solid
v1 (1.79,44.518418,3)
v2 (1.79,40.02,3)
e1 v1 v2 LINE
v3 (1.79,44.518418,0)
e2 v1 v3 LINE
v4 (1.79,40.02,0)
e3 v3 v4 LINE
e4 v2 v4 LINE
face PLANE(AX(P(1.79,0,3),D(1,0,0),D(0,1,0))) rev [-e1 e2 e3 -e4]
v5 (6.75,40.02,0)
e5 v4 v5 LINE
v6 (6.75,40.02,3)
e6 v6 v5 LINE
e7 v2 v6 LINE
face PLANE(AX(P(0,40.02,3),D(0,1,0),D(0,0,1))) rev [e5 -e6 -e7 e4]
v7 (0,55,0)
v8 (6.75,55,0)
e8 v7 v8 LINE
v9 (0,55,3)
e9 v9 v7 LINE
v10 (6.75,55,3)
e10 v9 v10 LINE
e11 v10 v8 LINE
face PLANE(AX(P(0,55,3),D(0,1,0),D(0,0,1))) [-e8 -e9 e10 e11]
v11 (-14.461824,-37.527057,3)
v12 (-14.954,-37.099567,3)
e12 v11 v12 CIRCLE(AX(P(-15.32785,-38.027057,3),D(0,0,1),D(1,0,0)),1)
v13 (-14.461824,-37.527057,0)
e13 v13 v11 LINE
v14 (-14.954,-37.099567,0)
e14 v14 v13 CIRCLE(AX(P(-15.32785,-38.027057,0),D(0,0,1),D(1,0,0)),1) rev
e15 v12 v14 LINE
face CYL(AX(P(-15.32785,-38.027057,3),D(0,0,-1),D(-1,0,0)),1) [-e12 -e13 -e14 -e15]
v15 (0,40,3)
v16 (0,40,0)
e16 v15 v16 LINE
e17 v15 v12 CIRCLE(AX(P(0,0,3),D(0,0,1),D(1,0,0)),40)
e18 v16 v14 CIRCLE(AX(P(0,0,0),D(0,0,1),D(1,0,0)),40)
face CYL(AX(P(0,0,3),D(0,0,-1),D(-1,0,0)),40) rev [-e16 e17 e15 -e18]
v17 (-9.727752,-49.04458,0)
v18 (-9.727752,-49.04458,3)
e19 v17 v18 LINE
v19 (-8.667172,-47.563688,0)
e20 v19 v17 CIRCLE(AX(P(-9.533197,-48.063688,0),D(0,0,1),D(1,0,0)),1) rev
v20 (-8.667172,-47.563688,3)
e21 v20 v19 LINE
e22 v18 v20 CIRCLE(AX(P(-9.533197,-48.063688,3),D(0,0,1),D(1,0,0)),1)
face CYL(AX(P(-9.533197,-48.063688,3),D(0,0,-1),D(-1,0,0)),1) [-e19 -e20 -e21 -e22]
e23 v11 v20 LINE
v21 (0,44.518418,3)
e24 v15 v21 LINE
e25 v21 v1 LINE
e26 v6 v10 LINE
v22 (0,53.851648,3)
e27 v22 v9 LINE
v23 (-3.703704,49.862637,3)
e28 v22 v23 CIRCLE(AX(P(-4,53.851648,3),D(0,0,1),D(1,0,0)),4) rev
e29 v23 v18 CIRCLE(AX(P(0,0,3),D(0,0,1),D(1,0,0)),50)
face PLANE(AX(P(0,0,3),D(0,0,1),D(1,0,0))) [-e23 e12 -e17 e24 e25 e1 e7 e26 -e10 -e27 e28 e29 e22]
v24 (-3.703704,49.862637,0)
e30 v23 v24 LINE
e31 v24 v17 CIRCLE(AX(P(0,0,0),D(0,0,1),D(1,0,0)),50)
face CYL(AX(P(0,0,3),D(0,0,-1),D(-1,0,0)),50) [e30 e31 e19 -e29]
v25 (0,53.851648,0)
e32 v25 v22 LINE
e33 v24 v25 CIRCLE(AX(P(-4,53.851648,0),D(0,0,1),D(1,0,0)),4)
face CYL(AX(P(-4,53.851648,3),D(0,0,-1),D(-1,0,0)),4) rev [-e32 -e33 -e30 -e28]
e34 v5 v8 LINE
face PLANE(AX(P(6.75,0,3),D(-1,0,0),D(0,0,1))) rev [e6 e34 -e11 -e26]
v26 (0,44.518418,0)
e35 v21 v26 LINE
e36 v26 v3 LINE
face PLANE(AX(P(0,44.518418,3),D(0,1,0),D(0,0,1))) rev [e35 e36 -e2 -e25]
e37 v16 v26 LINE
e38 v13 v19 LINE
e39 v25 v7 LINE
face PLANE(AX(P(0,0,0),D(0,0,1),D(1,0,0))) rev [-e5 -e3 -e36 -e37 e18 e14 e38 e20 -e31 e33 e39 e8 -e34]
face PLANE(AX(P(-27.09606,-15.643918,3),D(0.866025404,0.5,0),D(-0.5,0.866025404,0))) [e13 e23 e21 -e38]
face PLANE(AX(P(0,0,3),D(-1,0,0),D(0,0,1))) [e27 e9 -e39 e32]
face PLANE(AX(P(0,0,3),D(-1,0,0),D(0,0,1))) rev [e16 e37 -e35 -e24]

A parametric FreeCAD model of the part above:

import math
import FreeCAD as App
import Part
import Sketcher

V = App.Vector
Q = App.Units.Quantity


def edges_at(feature, points):
    """Names of the edges that pass closest to the given points."""
    edges = feature.Shape.Edges
    near = lambda p: min(range(len(edges)), key=lambda i: edges[i].distToShape(Part.Vertex(*p))[0])
    return sorted({f"Edge{near(p) + 1}" for p in points})

doc = App.newDocument("Part")
body = doc.addObject("PartDesign::Body", "Body")

# Sketch on XY plane
sketch1 = body.newObject("Sketcher::SketchObject", "Sketch")
sketch1.AttachmentSupport = (doc.getObject("XY_Plane"), [""])
sketch1.MapMode = "FlatFace"
sketch1.addGeometry([
    Part.LineSegment(V(0, 55, 0), V(0, 50, 0)),  # 0
    Part.ArcOfCircle(Part.Circle(V(0, 0, 0), V(0, 0, 1), 50), math.radians(90), math.radians(261)),  # 1
    Part.LineSegment(V(-7.6, -49.4, 0), V(-14.6, -37.2, 0)),  # 2
    Part.ArcOfCircle(Part.Circle(V(0, 0, 0), V(0, 0, 1), 40), math.radians(90), math.radians(249)),  # 3
    Part.LineSegment(V(0, 40, 0), V(0, 44.5, 0)),  # 4
    Part.LineSegment(V(0, 44.5, 0), V(1.8, 44.5, 0)),  # 5
    Part.LineSegment(V(1.8, 44.5, 0), V(1.8, 40, 0)),  # 6
    Part.LineSegment(V(1.8, 40, 0), V(6.8, 40, 0)),  # 7
    Part.LineSegment(V(6.8, 40, 0), V(6.8, 55, 0)),  # 8
    Part.LineSegment(V(6.8, 55, 0), V(0, 55, 0)),  # 9
], False)
sketch1.addConstraint([
    Sketcher.Constraint("Coincident", 0, 2, 1, 1),
    Sketcher.Constraint("Coincident", 1, 2, 2, 1),
    Sketcher.Constraint("Coincident", 2, 2, 3, 2),
    Sketcher.Constraint("Coincident", 3, 1, 4, 1),
    Sketcher.Constraint("Coincident", 4, 2, 5, 1),
    Sketcher.Constraint("Coincident", 5, 2, 6, 1),
    Sketcher.Constraint("Coincident", 6, 2, 7, 1),
    Sketcher.Constraint("Coincident", 7, 2, 8, 1),
    Sketcher.Constraint("Coincident", 8, 2, 9, 1),
    Sketcher.Constraint("Coincident", 9, 2, 0, 1),
    Sketcher.Constraint("Vertical", 0),
    Sketcher.Constraint("Vertical", 4),
    Sketcher.Constraint("Horizontal", 5),
    Sketcher.Constraint("Vertical", 6),
    Sketcher.Constraint("Horizontal", 7),
    Sketcher.Constraint("Vertical", 8),
    Sketcher.Constraint("Horizontal", 9),
    Sketcher.Constraint("Coincident", 1, 3, -1, 1),
    Sketcher.Constraint("Coincident", 3, 3, -1, 1),
    Sketcher.Constraint("PointOnObject", 0, 2, -2),
    Sketcher.Constraint("PointOnObject", 3, 1, -2),
    Sketcher.Constraint("Radius", 1, Q("50 mm")),
    Sketcher.Constraint("Radius", 3, Q("40 mm")),
    Sketcher.Constraint("DistanceY", 0, 2, 0, 1, Q("5 mm")),
    Sketcher.Constraint("Angle", 2, Q("120 deg")),
    Sketcher.Constraint("DistanceX", 5, 1, 5, 2, Q("1.79 mm")),
    Sketcher.Constraint("DistanceX", 7, 1, 7, 2, Q("4.96 mm")),
    Sketcher.Constraint("DistanceY", 8, 1, 8, 2, Q("14.98 mm")),
    Sketcher.Constraint("DistanceY", 4, 1, 4, 2, Q("4.518418 mm")),
    Sketcher.Constraint("DistanceY", 1, 2, -1, 1, Q("49.419701 mm")),
])
pad1 = body.newObject("PartDesign::Pad", "Pad")
pad1.Profile = sketch1
pad1.Length = 3
doc.recompute()

fillet = body.newObject("PartDesign::Fillet", "Fillet")
fillet.Base = (pad1, edges_at(pad1, [(-7.596, -49.42, 1.5)]))
fillet.Radius = 1
doc.recompute()

fillet2 = body.newObject("PartDesign::Fillet", "Fillet001")
fillet2.Base = (fillet, edges_at(fillet, [(-14.635, -37.226, 1.5)]))
fillet2.Radius = 1
doc.recompute()

fillet3 = body.newObject("PartDesign::Fillet", "Fillet002")
fillet3.Base = (fillet2, edges_at(fillet2, [(0, 50, 1.5)]))
fillet3.Radius = 4

doc.recompute()
